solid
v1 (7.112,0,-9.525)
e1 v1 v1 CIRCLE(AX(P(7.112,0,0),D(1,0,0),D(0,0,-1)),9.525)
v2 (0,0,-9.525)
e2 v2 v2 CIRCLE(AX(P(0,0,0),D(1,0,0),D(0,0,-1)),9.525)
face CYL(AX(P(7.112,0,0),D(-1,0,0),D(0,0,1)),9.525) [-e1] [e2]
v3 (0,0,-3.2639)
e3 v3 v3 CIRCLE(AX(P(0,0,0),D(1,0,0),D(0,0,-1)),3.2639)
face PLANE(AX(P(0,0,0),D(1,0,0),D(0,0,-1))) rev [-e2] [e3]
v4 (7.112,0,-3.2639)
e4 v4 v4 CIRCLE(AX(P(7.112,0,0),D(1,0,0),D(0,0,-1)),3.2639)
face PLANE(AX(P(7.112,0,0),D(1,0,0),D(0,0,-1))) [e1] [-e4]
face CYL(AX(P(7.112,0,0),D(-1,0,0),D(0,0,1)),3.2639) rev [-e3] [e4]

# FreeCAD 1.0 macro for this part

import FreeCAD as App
import Part
import Sketcher

V = App.Vector
Q = App.Units.Quantity

doc = App.newDocument("Part")
body = doc.addObject("PartDesign::Body", "Body")

# Sketch on YZ plane
sketch1 = body.newObject("Sketcher::SketchObject", "Sketch")
sketch1.AttachmentSupport = (doc.getObject("YZ_Plane"), [""])
sketch1.MapMode = "FlatFace"
sketch1.addGeometry([
    Part.Circle(V(0, 0, 0), V(0, 0, 1), 9.525),
    Part.Circle(V(0, 0, 0), V(0, 0, 1), 3.2639),
], False)
sketch1.addConstraint([
    Sketcher.Constraint("Coincident", 0, 3, -1, 1),
    Sketcher.Constraint("Coincident", 1, 3, -1, 1),
    Sketcher.Constraint("Diameter", 0, Q("0.75 in")),
    Sketcher.Constraint("Diameter", 1, Q("0.257 in")),
])
pad1 = body.newObject("PartDesign::Pad", "Pad")
pad1.Profile = sketch1
pad1.Length = Q("0.28 in")

doc.recompute()
